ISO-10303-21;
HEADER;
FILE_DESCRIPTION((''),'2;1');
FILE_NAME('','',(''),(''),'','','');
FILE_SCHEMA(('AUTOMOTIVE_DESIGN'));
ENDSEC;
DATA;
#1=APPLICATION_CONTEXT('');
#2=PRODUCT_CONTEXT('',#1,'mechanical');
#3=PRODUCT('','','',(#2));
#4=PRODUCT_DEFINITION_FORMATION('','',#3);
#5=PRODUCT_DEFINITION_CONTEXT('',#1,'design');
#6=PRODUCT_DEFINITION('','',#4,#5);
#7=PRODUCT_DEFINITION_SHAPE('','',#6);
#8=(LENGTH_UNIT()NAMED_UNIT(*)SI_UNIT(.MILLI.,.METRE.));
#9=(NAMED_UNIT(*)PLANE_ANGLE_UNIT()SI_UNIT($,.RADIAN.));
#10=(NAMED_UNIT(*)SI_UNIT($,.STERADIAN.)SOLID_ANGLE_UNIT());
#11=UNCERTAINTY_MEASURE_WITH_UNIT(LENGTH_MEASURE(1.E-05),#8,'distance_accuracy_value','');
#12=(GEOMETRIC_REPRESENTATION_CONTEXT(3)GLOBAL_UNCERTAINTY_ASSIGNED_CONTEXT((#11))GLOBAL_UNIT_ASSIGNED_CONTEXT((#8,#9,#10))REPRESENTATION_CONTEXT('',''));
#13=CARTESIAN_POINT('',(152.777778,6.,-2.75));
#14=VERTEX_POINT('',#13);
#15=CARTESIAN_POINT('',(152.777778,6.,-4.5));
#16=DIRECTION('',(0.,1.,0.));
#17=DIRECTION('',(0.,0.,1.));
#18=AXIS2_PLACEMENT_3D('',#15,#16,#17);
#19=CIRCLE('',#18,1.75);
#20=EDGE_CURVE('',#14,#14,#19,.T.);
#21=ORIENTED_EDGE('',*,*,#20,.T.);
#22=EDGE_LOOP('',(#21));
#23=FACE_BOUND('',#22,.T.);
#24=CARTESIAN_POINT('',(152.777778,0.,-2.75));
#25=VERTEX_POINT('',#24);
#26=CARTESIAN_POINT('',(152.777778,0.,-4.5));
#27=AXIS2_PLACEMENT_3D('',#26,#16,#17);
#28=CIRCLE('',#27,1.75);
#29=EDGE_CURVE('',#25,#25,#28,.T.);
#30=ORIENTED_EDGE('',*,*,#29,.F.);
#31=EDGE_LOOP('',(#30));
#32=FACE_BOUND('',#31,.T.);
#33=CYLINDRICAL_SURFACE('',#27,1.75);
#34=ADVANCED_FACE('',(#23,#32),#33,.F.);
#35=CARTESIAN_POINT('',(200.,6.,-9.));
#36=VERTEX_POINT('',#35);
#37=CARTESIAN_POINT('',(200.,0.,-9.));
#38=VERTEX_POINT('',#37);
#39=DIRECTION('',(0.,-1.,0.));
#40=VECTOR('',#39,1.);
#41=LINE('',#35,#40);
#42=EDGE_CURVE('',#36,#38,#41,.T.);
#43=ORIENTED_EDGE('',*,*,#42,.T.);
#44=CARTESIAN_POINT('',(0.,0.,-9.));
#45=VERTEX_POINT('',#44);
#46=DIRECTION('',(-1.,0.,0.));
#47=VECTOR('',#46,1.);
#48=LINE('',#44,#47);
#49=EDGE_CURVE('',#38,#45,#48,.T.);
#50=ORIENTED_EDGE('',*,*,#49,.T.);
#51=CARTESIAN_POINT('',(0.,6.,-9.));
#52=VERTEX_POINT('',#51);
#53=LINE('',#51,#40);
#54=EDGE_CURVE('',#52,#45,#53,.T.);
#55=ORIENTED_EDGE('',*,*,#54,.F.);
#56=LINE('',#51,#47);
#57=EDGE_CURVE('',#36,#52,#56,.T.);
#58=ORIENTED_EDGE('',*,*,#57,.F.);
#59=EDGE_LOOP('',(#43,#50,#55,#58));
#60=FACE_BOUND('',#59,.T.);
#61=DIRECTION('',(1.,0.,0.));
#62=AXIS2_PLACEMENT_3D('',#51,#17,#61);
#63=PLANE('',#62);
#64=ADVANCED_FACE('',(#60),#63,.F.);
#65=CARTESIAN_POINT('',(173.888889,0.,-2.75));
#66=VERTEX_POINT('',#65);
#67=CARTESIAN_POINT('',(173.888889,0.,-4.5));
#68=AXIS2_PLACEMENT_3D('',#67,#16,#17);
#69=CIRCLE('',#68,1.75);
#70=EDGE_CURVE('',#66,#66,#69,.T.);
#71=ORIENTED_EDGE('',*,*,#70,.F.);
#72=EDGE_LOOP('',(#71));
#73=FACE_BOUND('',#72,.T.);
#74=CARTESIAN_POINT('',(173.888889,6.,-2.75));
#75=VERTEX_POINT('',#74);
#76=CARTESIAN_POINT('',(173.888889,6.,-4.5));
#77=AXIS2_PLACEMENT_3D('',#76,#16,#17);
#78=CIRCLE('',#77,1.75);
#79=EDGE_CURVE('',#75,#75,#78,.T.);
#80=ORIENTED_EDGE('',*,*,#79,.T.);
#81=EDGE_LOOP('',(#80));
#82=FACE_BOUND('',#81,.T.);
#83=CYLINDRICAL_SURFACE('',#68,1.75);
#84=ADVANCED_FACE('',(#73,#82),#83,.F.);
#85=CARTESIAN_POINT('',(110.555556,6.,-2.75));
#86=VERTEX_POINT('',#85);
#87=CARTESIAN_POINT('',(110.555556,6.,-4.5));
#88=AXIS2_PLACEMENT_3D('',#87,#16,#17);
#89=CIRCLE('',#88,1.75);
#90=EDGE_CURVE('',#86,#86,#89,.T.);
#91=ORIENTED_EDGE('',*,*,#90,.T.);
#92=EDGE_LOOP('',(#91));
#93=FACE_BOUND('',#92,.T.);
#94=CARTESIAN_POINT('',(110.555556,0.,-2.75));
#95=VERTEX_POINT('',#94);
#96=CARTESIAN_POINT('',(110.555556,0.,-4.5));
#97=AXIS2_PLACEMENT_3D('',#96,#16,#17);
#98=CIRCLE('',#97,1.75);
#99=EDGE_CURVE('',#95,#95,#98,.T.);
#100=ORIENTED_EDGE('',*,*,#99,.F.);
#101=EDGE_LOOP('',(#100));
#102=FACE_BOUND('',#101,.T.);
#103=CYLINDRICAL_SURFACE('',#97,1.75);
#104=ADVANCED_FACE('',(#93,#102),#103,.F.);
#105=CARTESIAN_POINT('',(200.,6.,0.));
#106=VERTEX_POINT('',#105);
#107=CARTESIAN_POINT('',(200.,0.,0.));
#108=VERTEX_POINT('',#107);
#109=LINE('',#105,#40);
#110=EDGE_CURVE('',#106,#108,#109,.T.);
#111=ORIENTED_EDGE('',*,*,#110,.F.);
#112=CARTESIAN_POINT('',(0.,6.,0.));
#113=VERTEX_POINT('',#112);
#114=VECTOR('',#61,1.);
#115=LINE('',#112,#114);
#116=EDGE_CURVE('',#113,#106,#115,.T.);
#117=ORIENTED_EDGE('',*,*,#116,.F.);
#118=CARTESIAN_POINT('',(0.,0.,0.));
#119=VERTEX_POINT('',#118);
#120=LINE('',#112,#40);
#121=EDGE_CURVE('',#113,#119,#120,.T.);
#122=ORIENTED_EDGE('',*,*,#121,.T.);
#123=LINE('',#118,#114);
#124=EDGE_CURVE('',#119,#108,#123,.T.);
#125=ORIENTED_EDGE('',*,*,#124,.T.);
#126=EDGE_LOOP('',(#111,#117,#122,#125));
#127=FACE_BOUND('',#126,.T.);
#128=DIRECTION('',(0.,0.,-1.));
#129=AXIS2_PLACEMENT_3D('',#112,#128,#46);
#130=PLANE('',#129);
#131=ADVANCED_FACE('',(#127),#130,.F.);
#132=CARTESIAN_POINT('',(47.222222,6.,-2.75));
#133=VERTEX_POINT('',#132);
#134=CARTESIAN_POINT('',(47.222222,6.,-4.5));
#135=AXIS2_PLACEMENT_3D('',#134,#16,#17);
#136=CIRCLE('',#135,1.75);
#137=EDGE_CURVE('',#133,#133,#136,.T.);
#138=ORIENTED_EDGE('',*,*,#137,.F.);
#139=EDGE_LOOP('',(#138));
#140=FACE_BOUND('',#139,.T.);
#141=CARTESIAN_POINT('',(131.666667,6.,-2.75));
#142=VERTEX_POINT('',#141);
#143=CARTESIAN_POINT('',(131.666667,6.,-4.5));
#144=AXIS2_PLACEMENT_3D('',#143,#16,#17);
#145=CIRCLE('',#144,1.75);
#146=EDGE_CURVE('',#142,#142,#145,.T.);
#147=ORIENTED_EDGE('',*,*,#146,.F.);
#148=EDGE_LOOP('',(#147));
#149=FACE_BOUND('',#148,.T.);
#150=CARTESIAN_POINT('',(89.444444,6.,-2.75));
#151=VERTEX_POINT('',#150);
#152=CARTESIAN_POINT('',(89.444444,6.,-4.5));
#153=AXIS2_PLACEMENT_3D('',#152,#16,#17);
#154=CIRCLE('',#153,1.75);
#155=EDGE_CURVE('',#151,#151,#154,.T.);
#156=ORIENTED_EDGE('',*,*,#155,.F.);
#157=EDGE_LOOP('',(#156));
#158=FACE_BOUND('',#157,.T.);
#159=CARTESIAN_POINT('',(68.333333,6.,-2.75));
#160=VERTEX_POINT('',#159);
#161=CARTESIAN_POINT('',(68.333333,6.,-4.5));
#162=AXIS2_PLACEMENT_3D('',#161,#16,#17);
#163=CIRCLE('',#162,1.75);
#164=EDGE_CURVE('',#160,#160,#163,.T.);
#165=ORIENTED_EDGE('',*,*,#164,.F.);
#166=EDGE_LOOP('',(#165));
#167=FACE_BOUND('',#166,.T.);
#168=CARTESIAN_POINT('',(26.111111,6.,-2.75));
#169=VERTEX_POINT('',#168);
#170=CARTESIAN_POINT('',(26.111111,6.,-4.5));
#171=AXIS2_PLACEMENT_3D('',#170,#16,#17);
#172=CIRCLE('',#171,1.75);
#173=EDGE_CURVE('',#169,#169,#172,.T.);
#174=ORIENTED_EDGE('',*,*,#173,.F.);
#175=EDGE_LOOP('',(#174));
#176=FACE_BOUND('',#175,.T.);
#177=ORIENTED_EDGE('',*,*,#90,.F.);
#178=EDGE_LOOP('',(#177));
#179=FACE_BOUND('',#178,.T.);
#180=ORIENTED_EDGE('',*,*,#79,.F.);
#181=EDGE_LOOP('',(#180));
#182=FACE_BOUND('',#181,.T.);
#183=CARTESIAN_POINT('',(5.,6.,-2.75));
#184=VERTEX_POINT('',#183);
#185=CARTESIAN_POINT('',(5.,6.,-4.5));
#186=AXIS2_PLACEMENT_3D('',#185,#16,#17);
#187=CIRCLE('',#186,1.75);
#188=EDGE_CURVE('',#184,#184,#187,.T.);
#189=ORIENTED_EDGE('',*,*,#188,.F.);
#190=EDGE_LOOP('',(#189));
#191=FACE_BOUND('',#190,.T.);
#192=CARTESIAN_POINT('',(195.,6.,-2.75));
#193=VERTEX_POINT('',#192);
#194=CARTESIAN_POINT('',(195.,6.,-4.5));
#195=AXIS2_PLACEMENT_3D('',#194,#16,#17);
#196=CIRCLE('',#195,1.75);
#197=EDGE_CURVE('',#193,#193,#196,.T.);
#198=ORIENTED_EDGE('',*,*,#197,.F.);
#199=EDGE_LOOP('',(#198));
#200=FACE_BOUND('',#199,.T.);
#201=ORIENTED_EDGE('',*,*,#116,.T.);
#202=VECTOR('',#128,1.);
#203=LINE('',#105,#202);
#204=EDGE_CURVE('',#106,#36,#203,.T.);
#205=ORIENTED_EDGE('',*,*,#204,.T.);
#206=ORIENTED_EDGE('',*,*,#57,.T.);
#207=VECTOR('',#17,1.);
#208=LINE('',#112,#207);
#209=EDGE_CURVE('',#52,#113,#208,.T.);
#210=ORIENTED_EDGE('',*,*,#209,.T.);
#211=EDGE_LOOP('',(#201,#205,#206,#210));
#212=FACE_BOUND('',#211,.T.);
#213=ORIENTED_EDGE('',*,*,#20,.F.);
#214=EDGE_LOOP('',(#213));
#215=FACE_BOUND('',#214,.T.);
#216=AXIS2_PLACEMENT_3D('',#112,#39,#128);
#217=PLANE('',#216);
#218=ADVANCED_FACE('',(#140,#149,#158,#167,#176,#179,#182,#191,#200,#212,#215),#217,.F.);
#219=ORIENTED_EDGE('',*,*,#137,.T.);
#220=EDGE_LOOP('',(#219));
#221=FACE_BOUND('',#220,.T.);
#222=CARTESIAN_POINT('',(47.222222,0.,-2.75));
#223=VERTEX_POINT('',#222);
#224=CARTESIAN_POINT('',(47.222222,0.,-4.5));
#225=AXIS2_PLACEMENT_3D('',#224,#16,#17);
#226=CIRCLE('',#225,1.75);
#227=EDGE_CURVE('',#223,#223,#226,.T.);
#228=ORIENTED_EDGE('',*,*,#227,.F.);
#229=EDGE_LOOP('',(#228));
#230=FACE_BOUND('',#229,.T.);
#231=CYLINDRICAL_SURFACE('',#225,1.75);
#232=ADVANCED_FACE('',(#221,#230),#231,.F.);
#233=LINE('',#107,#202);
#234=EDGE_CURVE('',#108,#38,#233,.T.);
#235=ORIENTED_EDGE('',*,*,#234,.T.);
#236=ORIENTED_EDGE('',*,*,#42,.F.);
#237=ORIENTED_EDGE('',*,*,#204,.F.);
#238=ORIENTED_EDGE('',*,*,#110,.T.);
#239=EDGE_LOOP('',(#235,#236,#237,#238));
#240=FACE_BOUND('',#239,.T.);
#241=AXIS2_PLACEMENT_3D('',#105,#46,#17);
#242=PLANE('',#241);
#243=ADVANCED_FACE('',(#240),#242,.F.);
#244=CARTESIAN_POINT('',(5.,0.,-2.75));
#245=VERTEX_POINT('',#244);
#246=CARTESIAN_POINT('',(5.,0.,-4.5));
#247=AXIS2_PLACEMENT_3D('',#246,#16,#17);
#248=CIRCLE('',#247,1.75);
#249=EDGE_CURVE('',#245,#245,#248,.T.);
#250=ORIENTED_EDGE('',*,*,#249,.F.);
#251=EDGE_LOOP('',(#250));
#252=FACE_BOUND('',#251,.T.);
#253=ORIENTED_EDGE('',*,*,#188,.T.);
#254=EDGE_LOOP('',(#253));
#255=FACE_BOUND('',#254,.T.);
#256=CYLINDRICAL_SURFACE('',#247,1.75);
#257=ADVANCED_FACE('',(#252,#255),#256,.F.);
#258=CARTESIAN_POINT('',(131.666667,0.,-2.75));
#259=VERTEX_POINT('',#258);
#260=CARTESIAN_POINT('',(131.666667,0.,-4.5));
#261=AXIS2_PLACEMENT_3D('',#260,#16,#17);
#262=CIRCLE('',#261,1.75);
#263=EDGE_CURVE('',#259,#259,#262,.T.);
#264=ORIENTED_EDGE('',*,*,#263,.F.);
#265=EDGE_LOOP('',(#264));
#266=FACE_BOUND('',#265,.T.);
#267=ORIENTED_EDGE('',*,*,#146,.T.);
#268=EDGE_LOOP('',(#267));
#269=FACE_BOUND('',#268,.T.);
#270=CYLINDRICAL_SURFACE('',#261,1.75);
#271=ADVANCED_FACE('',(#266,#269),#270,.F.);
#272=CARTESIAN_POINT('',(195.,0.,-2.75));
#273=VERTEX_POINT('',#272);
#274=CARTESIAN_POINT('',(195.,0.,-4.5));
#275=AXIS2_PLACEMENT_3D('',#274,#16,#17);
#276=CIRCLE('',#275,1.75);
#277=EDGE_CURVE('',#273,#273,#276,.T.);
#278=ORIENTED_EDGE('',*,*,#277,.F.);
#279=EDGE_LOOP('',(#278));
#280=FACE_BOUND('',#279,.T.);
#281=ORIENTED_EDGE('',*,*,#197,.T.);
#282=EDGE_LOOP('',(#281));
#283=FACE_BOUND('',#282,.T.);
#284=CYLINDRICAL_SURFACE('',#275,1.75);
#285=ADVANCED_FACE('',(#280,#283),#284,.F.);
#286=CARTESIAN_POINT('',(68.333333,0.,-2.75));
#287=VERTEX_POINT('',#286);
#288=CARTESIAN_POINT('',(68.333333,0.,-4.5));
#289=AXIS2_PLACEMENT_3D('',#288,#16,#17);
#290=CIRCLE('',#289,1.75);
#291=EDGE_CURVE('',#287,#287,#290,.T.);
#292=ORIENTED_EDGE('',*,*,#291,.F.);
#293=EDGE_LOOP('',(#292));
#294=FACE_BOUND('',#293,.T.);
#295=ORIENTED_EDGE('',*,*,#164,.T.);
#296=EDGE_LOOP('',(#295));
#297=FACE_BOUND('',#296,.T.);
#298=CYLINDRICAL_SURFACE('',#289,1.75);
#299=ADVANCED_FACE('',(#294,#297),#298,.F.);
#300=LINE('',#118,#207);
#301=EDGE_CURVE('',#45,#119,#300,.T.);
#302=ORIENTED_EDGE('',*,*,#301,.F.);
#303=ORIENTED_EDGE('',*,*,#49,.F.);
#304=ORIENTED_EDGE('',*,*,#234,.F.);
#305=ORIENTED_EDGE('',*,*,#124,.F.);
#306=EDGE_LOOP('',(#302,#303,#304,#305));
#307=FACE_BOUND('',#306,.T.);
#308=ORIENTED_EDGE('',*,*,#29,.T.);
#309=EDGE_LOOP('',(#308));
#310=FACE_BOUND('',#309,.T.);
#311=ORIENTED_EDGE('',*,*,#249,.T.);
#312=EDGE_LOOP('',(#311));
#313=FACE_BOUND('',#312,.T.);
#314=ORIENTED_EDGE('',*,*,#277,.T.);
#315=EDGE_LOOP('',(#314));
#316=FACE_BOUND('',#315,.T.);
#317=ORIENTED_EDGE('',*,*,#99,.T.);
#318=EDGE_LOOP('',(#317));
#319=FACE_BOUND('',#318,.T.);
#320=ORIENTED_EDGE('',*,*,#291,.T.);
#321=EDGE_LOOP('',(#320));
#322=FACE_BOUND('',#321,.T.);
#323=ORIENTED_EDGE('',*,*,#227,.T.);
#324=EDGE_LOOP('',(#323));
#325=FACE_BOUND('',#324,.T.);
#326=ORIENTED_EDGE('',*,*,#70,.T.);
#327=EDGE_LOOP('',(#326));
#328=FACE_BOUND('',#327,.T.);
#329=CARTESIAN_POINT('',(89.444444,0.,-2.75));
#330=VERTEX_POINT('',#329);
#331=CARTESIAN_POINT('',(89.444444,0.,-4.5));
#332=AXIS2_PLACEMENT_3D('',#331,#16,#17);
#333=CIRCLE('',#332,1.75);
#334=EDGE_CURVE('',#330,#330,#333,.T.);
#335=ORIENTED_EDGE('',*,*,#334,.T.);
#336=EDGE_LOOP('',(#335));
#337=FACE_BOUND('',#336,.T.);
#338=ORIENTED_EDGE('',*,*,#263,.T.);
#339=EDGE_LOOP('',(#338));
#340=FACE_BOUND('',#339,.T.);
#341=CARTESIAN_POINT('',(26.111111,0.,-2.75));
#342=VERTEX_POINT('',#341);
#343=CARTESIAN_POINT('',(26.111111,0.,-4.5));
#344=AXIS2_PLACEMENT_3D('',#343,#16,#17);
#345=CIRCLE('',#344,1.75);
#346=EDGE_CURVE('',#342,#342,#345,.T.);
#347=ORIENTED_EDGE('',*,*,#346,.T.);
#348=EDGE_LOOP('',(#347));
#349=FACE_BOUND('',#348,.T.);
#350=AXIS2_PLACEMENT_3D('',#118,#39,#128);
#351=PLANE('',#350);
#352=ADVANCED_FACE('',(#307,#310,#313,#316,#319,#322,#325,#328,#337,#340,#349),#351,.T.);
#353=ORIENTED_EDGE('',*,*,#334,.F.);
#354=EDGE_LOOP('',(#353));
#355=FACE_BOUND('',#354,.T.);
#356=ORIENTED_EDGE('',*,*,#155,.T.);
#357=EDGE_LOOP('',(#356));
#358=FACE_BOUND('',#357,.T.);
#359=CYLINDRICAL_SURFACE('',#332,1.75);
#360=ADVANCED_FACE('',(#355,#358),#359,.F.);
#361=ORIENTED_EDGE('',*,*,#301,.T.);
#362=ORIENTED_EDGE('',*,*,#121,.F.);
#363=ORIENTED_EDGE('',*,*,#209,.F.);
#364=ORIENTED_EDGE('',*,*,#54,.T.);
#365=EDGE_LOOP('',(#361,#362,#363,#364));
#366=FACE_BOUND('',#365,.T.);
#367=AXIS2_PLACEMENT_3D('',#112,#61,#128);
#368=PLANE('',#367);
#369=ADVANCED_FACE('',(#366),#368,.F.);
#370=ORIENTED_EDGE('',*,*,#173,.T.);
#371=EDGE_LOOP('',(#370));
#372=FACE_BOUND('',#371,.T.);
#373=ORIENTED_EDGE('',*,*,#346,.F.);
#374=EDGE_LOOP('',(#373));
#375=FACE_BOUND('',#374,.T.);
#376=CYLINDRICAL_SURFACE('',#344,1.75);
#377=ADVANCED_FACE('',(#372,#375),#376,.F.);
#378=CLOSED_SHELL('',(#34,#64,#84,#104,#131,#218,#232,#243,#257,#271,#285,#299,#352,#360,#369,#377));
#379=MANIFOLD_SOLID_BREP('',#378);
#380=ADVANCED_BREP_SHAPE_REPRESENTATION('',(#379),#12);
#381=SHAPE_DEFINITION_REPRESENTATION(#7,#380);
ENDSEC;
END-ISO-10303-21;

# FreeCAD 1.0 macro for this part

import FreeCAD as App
import Part
import Sketcher

V = App.Vector

doc = App.newDocument("Part")
body = doc.addObject("PartDesign::Body", "Body")

# Sketch on XZ plane
sketch1 = body.newObject("Sketcher::SketchObject", "Sketch")
sketch1.AttachmentSupport = (doc.getObject("XZ_Plane"), [""])
sketch1.MapMode = "FlatFace"
sketch1.addGeometry(Part.LineSegment(V(0, -9, 0), V(0, 0, 0)), False)
sketch1.addGeometry(Part.LineSegment(V(0, 0, 0), V(200, 0, 0)), False)
sketch1.addGeometry(Part.LineSegment(V(200, 0, 0), V(200, -9, 0)), False)
sketch1.addGeometry(Part.LineSegment(V(200, -9, 0), V(0, -9, 0)), False)
sketch1.addConstraint(Sketcher.Constraint("Coincident", 0, 2, 1, 1))
sketch1.addConstraint(Sketcher.Constraint("Coincident", 1, 2, 2, 1))
sketch1.addConstraint(Sketcher.Constraint("Coincident", 2, 2, 3, 1))
sketch1.addConstraint(Sketcher.Constraint("Coincident", 3, 2, 0, 1))
sketch1.addConstraint(Sketcher.Constraint("Vertical", 0))
sketch1.addConstraint(Sketcher.Constraint("Horizontal", 1))
sketch1.addConstraint(Sketcher.Constraint("Vertical", 2))
sketch1.addConstraint(Sketcher.Constraint("Horizontal", 3))
sketch1.addConstraint(Sketcher.Constraint("Coincident", 0, 2, -1, 1))
sketch1.addConstraint(Sketcher.Constraint("DistanceX", 1, 1, 1, 2, 200.0))
sketch1.addConstraint(Sketcher.Constraint("DistanceY", 0, 1, 0, 2, 9.0))
pad1 = body.newObject("PartDesign::Pad", "Pad")
pad1.Profile = sketch1
pad1.Length = 6
pad1.Reversed = True

# Sketch on XZ plane
sketch2 = body.newObject("Sketcher::SketchObject", "Sketch001")
sketch2.AttachmentSupport = (doc.getObject("XZ_Plane"), [""])
sketch2.MapMode = "FlatFace"
sketch2.AttachmentOffset = App.Placement(V(0, 0, -6), App.Rotation())
sketch2.addGeometry(Part.Circle(V(5, -4.5, 0), V(0, 0, 1), 1.8), False)
sketch2.addConstraint(Sketcher.Constraint("Diameter", 0, 3.5))
sketch2.addConstraint(Sketcher.Constraint("DistanceX", -1, 1, 0, 3, 5.0))
sketch2.addConstraint(Sketcher.Constraint("DistanceY", 0, 3, -1, 1, 4.5))
pocket1 = body.newObject("PartDesign::Pocket", "Pocket")
pocket1.Profile = sketch2
pocket1.Length = 6
pocket1.Reversed = True
doc.recompute()

linearpattern = body.newObject("PartDesign::LinearPattern", "LinearPattern")
linearpattern.Originals = [pocket1]
linearpattern.Direction = (doc.getObject("X_Axis"), [""])
linearpattern.Mode = "offset"
linearpattern.Offset = 21.111111
linearpattern.Occurrences = 10
body.Tip = linearpattern

doc.recompute()
